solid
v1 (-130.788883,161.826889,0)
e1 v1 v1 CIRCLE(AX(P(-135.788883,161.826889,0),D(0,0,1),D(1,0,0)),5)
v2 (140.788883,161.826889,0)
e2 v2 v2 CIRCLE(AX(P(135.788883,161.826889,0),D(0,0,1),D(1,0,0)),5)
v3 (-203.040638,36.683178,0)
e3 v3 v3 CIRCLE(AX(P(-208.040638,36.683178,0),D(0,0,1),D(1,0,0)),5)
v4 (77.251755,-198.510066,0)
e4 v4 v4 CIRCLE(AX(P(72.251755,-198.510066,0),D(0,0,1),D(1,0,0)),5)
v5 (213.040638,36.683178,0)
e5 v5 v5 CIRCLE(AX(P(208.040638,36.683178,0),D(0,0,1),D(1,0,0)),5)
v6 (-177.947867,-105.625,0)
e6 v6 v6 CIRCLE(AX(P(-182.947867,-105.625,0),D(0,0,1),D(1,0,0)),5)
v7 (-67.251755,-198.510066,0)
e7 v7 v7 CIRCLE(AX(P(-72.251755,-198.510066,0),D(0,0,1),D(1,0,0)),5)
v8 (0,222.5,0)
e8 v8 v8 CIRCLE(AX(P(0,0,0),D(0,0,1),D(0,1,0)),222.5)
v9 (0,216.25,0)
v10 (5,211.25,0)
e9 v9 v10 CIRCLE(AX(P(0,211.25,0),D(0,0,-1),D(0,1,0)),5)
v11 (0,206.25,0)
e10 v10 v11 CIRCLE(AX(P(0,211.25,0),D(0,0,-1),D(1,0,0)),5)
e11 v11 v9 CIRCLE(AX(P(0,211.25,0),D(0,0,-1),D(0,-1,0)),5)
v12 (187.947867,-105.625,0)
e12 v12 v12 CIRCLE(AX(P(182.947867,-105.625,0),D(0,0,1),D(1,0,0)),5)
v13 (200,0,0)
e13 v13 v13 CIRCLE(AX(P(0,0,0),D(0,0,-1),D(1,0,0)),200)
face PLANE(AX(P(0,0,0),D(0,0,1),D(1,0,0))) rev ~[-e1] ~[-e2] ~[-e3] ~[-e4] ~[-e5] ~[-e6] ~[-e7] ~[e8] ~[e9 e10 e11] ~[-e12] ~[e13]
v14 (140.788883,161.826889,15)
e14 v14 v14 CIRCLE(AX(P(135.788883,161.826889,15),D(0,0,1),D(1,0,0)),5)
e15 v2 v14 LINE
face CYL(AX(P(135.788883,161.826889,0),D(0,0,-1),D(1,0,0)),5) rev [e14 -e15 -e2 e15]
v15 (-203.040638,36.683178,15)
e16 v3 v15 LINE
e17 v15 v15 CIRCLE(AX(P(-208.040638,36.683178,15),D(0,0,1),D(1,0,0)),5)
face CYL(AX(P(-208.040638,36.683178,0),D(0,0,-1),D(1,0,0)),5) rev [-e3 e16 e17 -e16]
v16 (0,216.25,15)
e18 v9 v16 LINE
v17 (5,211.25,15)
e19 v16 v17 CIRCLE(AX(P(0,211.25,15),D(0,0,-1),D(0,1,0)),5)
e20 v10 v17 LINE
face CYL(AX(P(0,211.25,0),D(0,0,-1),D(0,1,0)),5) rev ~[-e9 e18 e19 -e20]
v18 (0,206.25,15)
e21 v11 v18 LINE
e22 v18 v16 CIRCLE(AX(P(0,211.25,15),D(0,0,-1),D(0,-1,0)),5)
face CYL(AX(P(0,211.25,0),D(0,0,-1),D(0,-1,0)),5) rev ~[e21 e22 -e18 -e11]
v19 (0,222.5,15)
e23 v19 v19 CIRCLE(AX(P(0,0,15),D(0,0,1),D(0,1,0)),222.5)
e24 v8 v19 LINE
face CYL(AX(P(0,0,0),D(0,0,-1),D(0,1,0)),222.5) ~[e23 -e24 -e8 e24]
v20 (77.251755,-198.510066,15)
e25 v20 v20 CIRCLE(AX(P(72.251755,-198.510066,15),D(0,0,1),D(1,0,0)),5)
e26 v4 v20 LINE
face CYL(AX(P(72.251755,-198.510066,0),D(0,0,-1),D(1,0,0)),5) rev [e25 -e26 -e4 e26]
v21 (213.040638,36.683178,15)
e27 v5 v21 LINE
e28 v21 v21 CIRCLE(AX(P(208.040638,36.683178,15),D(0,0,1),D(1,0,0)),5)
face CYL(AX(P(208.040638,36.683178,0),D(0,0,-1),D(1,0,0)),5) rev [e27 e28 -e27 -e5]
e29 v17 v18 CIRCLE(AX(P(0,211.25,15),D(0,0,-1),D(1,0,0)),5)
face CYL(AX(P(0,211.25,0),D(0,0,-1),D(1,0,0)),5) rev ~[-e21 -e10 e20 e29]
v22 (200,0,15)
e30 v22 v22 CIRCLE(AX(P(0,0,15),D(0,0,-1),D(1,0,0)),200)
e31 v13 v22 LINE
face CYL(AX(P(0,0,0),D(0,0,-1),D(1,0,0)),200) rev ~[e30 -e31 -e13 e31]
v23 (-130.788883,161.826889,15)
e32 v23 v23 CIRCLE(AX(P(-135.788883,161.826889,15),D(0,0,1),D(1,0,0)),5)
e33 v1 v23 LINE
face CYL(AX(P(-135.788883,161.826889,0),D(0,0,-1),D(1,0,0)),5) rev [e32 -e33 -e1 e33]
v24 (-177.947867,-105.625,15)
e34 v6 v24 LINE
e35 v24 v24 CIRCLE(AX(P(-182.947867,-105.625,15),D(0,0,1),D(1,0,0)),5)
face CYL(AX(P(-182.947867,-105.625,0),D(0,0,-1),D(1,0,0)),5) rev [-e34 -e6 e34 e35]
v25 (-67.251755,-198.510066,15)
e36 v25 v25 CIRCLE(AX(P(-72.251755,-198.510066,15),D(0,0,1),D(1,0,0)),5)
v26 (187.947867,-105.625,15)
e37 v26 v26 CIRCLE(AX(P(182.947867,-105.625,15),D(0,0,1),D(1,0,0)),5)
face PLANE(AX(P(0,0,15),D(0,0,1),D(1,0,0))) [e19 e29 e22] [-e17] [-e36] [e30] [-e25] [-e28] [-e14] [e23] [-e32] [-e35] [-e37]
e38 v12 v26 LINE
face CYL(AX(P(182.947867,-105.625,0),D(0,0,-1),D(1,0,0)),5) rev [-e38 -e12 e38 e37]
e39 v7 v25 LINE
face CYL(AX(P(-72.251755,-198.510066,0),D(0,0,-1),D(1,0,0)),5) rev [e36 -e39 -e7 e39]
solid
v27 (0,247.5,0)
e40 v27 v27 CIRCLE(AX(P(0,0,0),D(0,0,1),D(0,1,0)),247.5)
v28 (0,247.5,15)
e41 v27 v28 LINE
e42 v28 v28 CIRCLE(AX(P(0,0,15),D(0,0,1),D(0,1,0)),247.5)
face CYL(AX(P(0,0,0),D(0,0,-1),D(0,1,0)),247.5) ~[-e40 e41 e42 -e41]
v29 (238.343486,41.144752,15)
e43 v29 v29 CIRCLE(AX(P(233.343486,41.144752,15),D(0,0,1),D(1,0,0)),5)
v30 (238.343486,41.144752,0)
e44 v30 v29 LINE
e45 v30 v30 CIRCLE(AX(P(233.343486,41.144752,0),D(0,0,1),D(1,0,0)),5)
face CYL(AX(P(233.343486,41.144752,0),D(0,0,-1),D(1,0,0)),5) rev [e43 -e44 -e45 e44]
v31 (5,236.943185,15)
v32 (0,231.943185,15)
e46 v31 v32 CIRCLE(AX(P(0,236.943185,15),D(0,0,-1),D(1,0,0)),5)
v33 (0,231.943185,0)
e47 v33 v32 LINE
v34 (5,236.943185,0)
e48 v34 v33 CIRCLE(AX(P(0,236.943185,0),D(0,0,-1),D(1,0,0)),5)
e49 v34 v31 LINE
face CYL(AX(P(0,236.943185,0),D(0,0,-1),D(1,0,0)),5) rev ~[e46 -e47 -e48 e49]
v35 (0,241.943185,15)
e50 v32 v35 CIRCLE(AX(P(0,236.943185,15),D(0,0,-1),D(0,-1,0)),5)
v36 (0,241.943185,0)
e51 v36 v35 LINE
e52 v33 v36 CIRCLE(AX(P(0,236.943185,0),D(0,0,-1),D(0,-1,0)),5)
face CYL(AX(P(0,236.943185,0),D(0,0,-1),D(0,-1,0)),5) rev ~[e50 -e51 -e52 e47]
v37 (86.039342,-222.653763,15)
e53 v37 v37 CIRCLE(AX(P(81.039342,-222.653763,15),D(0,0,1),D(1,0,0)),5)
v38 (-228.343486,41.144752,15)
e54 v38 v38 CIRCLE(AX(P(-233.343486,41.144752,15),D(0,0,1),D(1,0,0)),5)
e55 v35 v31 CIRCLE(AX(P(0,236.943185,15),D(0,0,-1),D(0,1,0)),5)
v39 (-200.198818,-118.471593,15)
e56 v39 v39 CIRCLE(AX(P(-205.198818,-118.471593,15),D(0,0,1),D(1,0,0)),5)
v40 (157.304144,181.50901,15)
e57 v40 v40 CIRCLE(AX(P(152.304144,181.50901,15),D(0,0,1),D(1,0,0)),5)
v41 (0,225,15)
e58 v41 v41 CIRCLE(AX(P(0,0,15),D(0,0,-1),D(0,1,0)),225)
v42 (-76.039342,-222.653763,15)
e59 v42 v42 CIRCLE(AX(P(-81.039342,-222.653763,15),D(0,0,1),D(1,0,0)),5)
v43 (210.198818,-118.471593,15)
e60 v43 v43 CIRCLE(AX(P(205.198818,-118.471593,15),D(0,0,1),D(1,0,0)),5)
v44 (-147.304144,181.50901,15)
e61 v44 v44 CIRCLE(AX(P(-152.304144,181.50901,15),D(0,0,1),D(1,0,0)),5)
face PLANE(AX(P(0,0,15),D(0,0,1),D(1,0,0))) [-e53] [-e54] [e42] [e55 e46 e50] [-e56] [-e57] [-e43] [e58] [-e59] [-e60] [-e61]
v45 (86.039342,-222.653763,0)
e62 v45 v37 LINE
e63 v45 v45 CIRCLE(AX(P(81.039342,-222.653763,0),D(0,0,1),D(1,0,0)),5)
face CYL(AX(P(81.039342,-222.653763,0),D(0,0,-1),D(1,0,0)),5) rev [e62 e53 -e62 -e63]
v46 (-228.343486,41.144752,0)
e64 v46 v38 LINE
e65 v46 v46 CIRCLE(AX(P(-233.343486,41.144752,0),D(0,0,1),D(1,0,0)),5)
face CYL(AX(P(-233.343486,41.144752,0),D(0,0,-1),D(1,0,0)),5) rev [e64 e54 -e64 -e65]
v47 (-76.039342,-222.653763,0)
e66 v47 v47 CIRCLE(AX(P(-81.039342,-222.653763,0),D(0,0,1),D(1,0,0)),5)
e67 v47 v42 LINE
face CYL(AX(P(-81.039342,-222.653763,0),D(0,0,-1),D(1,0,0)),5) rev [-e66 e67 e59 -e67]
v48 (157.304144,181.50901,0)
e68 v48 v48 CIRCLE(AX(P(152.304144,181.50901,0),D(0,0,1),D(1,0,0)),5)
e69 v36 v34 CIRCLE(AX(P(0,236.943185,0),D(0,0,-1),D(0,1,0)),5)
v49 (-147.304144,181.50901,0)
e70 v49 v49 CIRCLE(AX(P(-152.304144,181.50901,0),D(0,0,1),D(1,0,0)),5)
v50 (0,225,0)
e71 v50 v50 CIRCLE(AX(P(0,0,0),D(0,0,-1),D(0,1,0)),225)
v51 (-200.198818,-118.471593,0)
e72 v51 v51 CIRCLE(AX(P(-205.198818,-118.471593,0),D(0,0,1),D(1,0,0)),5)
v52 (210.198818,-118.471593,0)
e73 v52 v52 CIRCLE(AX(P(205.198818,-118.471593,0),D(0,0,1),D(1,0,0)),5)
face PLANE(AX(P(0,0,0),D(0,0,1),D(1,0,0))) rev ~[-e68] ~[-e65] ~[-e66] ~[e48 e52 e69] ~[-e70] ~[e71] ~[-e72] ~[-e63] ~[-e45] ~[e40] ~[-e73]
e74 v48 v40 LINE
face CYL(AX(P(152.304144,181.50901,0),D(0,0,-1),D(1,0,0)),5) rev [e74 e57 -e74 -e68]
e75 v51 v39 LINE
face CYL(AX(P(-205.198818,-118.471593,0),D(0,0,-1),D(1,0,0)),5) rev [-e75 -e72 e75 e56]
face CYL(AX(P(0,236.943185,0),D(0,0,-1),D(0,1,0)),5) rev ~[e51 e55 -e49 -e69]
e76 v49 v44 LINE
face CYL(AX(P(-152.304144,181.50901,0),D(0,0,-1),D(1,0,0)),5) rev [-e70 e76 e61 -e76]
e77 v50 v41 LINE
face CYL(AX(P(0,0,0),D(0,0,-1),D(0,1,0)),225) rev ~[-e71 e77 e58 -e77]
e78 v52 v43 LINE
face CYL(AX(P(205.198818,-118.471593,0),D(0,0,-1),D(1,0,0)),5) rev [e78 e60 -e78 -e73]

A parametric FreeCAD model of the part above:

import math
import FreeCAD as App
import Part
import Sketcher
from FreeCAD import Vector

doc = App.newDocument("Part")
params = doc.addObject("Spreadsheet::Sheet", "Params")
for row, (alias, value) in enumerate([
    ("sketch1_diameter", "445 mm"),
    ("sketch1_diameter2", "10 mm"),
    ("sketch1_diameter3", "400 mm"),
    ("pad1_length", "15 mm"),
    ("sketch2_diameter", "495 mm"),
    ("sketch2_diameter2", "10 mm"),
    ("sketch2_diameter3", "450 mm"),
    ("pad2_length", "15 mm"),
], start=1):
    params.set(f"A{row}", alias)
    params.set(f"B{row}", "=" + value)
    params.setAlias(f"B{row}", alias)

body = doc.addObject("PartDesign::Body", "Body")

# Sketch on XY plane
sketch1 = body.newObject("Sketcher::SketchObject", "Sketch")
sketch1.AttachmentSupport = (doc.getObject("XY_Plane"), [""])
sketch1.MapMode = "FlatFace"
sketch1.addGeometry(Part.Circle(Vector(0, 0, 0), Vector(0, 0, 1), 222.5), False)
sketch1.addGeometry(Part.Circle(Vector(-182.947867, -105.625, 0), Vector(0, 0, 1), 5), False)
sketch1.addGeometry(Part.Circle(Vector(-72.251755, -198.510066, 0), Vector(0, 0, 1), 5), False)
sketch1.addGeometry(Part.Circle(Vector(72.251755, -198.510066, 0), Vector(0, 0, 1), 5), False)
sketch1.addGeometry(Part.Circle(Vector(182.947867, -105.625, 0), Vector(0, 0, 1), 5), False)
sketch1.addGeometry(Part.Circle(Vector(0, 0, 0), Vector(0, 0, 1), 200), False)
sketch1.addGeometry(Part.Circle(Vector(-208.040638, 36.683178, 0), Vector(0, 0, 1), 5), False)
sketch1.addGeometry(Part.Circle(Vector(-135.788883, 161.826889, 0), Vector(0, 0, 1), 5), False)
sketch1.addGeometry(Part.ArcOfCircle(Part.Circle(Vector(0, 211.25, 0), Vector(0, 0, 1), 5), math.radians(0), math.radians(90)), False)
sketch1.addGeometry(Part.ArcOfCircle(Part.Circle(Vector(0, 211.25, 0), Vector(0, 0, 1), 5), math.radians(-90), math.radians(0)), False)
sketch1.addGeometry(Part.ArcOfCircle(Part.Circle(Vector(0, 211.25, 0), Vector(0, 0, 1), 5), math.radians(90), math.radians(270)), False)
sketch1.addGeometry(Part.Circle(Vector(208.040638, 36.683178, 0), Vector(0, 0, 1), 5), False)
sketch1.addGeometry(Part.Circle(Vector(135.788883, 161.826889, 0), Vector(0, 0, 1), 5), False)
sketch1.addConstraint(Sketcher.Constraint("Tangent", 8, 1, 9, 2))
sketch1.addConstraint(Sketcher.Constraint("Tangent", 9, 1, 10, 2))
sketch1.addConstraint(Sketcher.Constraint("Tangent", 10, 1, 8, 2))
sketch1.addConstraint(Sketcher.Constraint("Coincident", 0, 3, -1, 1))
sketch1.addConstraint(Sketcher.Constraint("Coincident", 5, 3, -1, 1))
sketch1.addConstraint(Sketcher.Constraint("Equal", 1, 2))
sketch1.addConstraint(Sketcher.Constraint("Equal", 2, 3))
sketch1.addConstraint(Sketcher.Constraint("Equal", 3, 4))
sketch1.addConstraint(Sketcher.Constraint("Equal", 4, 6))
sketch1.addConstraint(Sketcher.Constraint("Equal", 6, 7))
sketch1.addConstraint(Sketcher.Constraint("Equal", 7, 8))
sketch1.addConstraint(Sketcher.Constraint("Equal", 10, 11))
sketch1.addConstraint(Sketcher.Constraint("Equal", 11, 12))
sketch1.addConstraint(Sketcher.Constraint("Symmetric", 2, 3, 3, 3, -2))
sketch1.addConstraint(Sketcher.Constraint("Symmetric", 1, 3, 4, 3, -2))
sketch1.addConstraint(Sketcher.Constraint("Symmetric", 6, 3, 11, 3, -2))
sketch1.addConstraint(Sketcher.Constraint("Symmetric", 7, 3, 12, 3, -2))
sketch1.addConstraint(Sketcher.Constraint("PointOnObject", 8, 3, -2))
sketch1.addConstraint(Sketcher.Constraint("PointOnObject", 9, 1, -2))
sketch1.addConstraint(Sketcher.Constraint("PointOnObject", 10, 1, -2))
sketch1.addConstraint(Sketcher.Constraint("Horizontal", 10, 3, 8, 1))
sketch1.addConstraint(Sketcher.Constraint("Diameter", 0, 445.0))
sketch1.addConstraint(Sketcher.Constraint("Diameter", 1, 10.0))
sketch1.addConstraint(Sketcher.Constraint("Diameter", 5, 400.0))
sketch1.addConstraint(Sketcher.Constraint("DistanceY", -1, 1, 8, 3, 211.25))
sketch1.addConstraint(Sketcher.Constraint("DistanceY", 1, 3, -1, 1, 105.625))
sketch1.addConstraint(Sketcher.Constraint("DistanceY", -1, 1, 7, 3, 161.826889))
sketch1.addConstraint(Sketcher.Constraint("DistanceX", 1, 3, 2, 3, 110.696111))
sketch1.addConstraint(Sketcher.Constraint("DistanceX", 2, 3, 3, 3, 144.503511))
sketch1.addConstraint(Sketcher.Constraint("DistanceX", 6, 3, 1, 3, 25.092771))
sketch1.addConstraint(Sketcher.Constraint("DistanceY", 6, 3, 7, 3, 125.143711))
sketch1.addConstraint(Sketcher.Constraint("DistanceY", 2, 3, -1, 1, 198.510066))
sketch1.addConstraint(Sketcher.Constraint("DistanceX", 7, 3, -1, 1, 135.788883))
sketch1.setExpression("Constraints[21]", "Params.sketch1_diameter")
sketch1.setExpression("Constraints[22]", "Params.sketch1_diameter2")
sketch1.setExpression("Constraints[23]", "Params.sketch1_diameter3")
pad1 = body.newObject("PartDesign::Pad", "Pad")
pad1.Profile = sketch1
pad1.setExpression("Length", "Params.pad1_length")
body2 = doc.addObject("PartDesign::Body", "Body001")

# Sketch on XY plane
sketch2 = body2.newObject("Sketcher::SketchObject", "Sketch001")
sketch2.AttachmentSupport = (doc.getObject("XY_Plane001"), [""])
sketch2.MapMode = "FlatFace"
sketch2.addGeometry(Part.Circle(Vector(0, 0, 0), Vector(0, 0, 1), 247.5), False)
sketch2.addGeometry(Part.Circle(Vector(-205.198818, -118.471593, 0), Vector(0, 0, 1), 5), False)
sketch2.addGeometry(Part.Circle(Vector(-81.039342, -222.653763, 0), Vector(0, 0, 1), 5), False)
sketch2.addGeometry(Part.Circle(Vector(81.039342, -222.653763, 0), Vector(0, 0, 1), 5), False)
sketch2.addGeometry(Part.Circle(Vector(205.198818, -118.471593, 0), Vector(0, 0, 1), 5), False)
sketch2.addGeometry(Part.Circle(Vector(0, 0, 0), Vector(0, 0, 1), 225), False)
sketch2.addGeometry(Part.Circle(Vector(-233.343486, 41.144752, 0), Vector(0, 0, 1), 5), False)
sketch2.addGeometry(Part.Circle(Vector(-152.304144, 181.50901, 0), Vector(0, 0, 1), 5), False)
sketch2.addGeometry(Part.Circle(Vector(233.343486, 41.144752, 0), Vector(0, 0, 1), 5), False)
sketch2.addGeometry(Part.ArcOfCircle(Part.Circle(Vector(0, 236.943185, 0), Vector(0, 0, 1), 5), math.radians(0), math.radians(90)), False)
sketch2.addGeometry(Part.ArcOfCircle(Part.Circle(Vector(0, 236.943185, 0), Vector(0, 0, 1), 5), math.radians(-90), math.radians(0)), False)
sketch2.addGeometry(Part.ArcOfCircle(Part.Circle(Vector(0, 236.943185, 0), Vector(0, 0, 1), 5), math.radians(90), math.radians(270)), False)
sketch2.addGeometry(Part.Circle(Vector(152.304144, 181.50901, 0), Vector(0, 0, 1), 5), False)
sketch2.addConstraint(Sketcher.Constraint("Tangent", 9, 1, 10, 2))
sketch2.addConstraint(Sketcher.Constraint("Tangent", 10, 1, 11, 2))
sketch2.addConstraint(Sketcher.Constraint("Tangent", 11, 1, 9, 2))
sketch2.addConstraint(Sketcher.Constraint("Coincident", 0, 3, -1, 1))
sketch2.addConstraint(Sketcher.Constraint("Coincident", 5, 3, -1, 1))
sketch2.addConstraint(Sketcher.Constraint("Equal", 1, 2))
sketch2.addConstraint(Sketcher.Constraint("Equal", 2, 3))
sketch2.addConstraint(Sketcher.Constraint("Equal", 3, 4))
sketch2.addConstraint(Sketcher.Constraint("Equal", 4, 6))
sketch2.addConstraint(Sketcher.Constraint("Equal", 6, 7))
sketch2.addConstraint(Sketcher.Constraint("Equal", 7, 8))
sketch2.addConstraint(Sketcher.Constraint("Equal", 8, 9))
sketch2.addConstraint(Sketcher.Constraint("Equal", 11, 12))
sketch2.addConstraint(Sketcher.Constraint("Symmetric", 2, 3, 3, 3, -2))
sketch2.addConstraint(Sketcher.Constraint("Symmetric", 1, 3, 4, 3, -2))
sketch2.addConstraint(Sketcher.Constraint("Symmetric", 6, 3, 8, 3, -2))
sketch2.addConstraint(Sketcher.Constraint("Symmetric", 7, 3, 12, 3, -2))
sketch2.addConstraint(Sketcher.Constraint("PointOnObject", 9, 3, -2))
sketch2.addConstraint(Sketcher.Constraint("PointOnObject", 10, 1, -2))
sketch2.addConstraint(Sketcher.Constraint("PointOnObject", 11, 1, -2))
sketch2.addConstraint(Sketcher.Constraint("Horizontal", 11, 3, 9, 1))
sketch2.addConstraint(Sketcher.Constraint("Diameter", 0, 495.0))
sketch2.addConstraint(Sketcher.Constraint("Diameter", 1, 10.0))
sketch2.addConstraint(Sketcher.Constraint("Diameter", 5, 450.0))
sketch2.addConstraint(Sketcher.Constraint("DistanceX", 7, 3, 2, 3, 71.264802))
sketch2.addConstraint(Sketcher.Constraint("DistanceY", -1, 1, 7, 3, 181.50901))
sketch2.addConstraint(Sketcher.Constraint("DistanceY", 2, 3, 1, 3, 104.18217))
sketch2.addConstraint(Sketcher.Constraint("DistanceX", 1, 3, 3, 3, 286.23816))
sketch2.addConstraint(Sketcher.Constraint("DistanceX", 6, 3, 1, 3, 28.144668))
sketch2.addConstraint(Sketcher.Constraint("DistanceY", 6, 3, 7, 3, 140.364258))
sketch2.addConstraint(Sketcher.Constraint("DistanceX", 1, 3, -1, 1, 205.198818))
sketch2.addConstraint(Sketcher.Constraint("DistanceY", 1, 3, -1, 1, 118.471593))
sketch2.addConstraint(Sketcher.Constraint("DistanceY", -1, 1, 9, 3, 236.943185))
sketch2.setExpression("Constraints[21]", "Params.sketch2_diameter")
sketch2.setExpression("Constraints[22]", "Params.sketch2_diameter2")
sketch2.setExpression("Constraints[23]", "Params.sketch2_diameter3")
pad2 = body2.newObject("PartDesign::Pad", "Pad001")
pad2.Profile = sketch2
pad2.setExpression("Length", "Params.pad2_length")

doc.recompute()
